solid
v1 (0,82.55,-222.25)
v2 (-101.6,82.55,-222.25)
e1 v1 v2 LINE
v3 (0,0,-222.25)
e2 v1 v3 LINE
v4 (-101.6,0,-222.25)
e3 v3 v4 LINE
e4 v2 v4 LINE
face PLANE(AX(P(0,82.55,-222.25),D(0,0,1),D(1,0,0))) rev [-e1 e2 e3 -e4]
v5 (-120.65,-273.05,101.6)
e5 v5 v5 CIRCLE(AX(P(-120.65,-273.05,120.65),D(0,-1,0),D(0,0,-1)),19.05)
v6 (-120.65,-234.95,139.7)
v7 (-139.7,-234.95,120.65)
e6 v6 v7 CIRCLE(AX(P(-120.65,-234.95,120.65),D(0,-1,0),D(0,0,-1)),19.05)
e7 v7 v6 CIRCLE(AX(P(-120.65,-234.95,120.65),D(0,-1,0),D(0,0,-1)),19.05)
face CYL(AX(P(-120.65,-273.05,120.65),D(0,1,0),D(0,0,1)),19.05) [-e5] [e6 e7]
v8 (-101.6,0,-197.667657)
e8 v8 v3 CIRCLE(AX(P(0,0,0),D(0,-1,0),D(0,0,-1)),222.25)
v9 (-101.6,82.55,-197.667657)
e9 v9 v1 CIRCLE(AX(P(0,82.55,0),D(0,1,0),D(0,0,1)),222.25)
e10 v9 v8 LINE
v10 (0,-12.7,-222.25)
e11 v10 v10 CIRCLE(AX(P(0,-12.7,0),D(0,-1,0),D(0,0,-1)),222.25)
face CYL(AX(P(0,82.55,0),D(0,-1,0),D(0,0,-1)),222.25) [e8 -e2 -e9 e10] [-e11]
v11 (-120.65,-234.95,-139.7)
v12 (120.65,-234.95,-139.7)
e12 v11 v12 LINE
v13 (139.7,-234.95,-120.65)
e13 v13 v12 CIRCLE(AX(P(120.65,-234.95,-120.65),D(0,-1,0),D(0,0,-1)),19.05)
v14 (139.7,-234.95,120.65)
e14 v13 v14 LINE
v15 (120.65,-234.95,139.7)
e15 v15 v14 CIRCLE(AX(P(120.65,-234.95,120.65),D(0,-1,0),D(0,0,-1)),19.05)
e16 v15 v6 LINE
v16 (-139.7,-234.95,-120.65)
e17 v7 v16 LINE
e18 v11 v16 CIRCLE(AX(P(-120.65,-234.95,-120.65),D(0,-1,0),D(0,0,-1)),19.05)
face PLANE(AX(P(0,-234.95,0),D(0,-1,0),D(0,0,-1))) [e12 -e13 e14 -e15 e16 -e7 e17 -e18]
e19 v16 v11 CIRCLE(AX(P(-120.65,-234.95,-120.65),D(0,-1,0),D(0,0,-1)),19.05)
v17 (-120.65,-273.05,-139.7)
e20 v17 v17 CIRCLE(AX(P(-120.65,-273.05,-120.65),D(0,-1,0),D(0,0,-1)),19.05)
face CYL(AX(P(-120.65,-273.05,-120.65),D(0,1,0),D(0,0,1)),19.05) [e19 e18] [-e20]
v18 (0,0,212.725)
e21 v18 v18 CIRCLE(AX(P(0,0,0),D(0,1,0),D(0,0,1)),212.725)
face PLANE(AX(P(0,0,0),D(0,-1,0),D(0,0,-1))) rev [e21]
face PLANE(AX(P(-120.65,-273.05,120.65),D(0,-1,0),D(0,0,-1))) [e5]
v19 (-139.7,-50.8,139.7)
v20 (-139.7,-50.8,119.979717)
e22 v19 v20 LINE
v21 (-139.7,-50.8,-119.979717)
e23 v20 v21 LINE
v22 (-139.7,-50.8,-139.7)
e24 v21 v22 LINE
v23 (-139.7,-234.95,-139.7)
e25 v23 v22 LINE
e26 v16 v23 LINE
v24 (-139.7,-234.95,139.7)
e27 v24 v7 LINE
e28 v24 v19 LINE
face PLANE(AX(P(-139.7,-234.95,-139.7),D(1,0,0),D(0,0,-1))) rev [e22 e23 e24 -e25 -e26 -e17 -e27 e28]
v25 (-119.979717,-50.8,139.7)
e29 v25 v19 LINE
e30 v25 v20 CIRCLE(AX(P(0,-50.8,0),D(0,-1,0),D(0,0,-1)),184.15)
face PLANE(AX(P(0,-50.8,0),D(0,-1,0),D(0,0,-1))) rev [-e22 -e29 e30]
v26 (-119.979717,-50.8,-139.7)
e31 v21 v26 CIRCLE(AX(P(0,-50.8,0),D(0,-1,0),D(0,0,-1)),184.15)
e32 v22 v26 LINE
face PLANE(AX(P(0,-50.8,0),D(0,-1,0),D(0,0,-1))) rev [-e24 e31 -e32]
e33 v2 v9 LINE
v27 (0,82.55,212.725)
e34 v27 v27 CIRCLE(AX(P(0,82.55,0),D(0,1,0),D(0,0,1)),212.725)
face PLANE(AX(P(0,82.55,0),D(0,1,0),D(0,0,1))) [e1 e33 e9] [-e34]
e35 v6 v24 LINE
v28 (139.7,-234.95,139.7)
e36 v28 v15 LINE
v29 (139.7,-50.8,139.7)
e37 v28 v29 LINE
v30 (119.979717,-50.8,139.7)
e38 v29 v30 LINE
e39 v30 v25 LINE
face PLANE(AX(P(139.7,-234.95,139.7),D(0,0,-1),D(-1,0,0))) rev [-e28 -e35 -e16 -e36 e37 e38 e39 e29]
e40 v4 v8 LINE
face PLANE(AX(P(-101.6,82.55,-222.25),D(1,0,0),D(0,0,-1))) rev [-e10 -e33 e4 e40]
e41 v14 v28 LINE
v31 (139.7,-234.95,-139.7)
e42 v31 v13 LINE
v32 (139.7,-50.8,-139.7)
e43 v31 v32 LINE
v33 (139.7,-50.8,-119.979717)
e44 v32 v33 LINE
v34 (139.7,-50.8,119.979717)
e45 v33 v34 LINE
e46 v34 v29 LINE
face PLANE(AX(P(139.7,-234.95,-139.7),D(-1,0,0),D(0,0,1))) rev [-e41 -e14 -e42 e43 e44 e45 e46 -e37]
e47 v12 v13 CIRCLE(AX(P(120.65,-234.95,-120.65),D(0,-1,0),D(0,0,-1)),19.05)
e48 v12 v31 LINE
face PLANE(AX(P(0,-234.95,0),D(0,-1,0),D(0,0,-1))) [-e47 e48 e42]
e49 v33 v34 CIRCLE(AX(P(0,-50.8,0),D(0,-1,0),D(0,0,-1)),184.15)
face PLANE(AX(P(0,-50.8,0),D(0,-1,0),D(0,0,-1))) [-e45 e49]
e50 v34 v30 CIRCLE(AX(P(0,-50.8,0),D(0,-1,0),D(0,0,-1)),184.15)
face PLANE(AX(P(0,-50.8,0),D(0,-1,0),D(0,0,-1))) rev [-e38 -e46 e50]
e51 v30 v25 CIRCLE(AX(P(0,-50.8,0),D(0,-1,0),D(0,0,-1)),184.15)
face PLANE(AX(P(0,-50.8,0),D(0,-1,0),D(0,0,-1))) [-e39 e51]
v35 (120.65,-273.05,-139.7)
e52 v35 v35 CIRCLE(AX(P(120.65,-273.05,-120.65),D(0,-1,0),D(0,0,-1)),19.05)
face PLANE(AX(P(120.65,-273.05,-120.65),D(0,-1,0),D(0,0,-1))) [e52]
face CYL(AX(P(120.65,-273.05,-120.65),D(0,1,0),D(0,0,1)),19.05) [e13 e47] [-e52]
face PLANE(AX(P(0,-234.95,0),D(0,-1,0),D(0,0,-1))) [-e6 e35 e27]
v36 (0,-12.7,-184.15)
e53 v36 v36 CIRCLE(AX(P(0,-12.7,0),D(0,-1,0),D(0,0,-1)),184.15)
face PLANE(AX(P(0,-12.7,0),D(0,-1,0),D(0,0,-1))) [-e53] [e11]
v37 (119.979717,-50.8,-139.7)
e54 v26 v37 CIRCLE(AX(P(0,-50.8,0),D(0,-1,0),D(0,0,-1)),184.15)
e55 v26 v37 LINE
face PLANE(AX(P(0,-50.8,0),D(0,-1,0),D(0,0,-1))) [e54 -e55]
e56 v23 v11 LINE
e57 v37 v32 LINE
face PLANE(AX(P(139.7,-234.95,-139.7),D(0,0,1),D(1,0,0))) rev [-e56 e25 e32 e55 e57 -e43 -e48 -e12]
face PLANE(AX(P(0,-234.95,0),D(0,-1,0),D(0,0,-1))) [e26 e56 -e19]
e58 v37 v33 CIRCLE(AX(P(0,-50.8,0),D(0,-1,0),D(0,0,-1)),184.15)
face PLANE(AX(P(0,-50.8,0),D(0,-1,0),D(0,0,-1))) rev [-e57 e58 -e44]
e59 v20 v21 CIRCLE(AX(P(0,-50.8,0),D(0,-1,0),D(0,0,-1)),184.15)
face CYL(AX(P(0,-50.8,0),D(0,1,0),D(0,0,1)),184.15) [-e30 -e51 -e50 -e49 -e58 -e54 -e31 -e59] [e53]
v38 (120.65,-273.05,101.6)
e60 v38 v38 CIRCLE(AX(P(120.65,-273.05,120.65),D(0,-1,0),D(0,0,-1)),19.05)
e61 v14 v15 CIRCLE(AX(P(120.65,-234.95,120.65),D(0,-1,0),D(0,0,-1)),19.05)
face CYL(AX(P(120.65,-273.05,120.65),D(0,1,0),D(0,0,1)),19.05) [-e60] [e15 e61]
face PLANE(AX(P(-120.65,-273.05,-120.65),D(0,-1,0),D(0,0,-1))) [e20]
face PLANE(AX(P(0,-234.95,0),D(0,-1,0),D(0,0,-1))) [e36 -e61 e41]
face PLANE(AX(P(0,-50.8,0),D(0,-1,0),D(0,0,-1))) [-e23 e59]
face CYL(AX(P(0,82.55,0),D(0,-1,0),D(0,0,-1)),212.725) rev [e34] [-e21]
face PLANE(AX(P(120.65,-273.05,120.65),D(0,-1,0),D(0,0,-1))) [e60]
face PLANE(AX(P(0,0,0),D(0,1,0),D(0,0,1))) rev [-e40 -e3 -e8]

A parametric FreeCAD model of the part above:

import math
import FreeCAD as App
import Part
import Sketcher
from FreeCAD import Vector
Q = App.Units.Quantity

doc = App.newDocument("Part")
params = doc.addObject("Spreadsheet::Sheet", "Params")
for row, (alias, value) in enumerate([
    ("sketch1_diameter", "16.75 in"),
    ("sketch1_width", "4 in"),
    ("sketch1_radius", "8.75 in"),
    ("pad1_length", "3.25 in"),
    ("sketch2_diameter", "17.5 in"),
    ("pad2_length", "0.5 in"),
    ("sketch3_diameter", "14.5 in"),
    ("pad3_length", "1.5 in"),
    ("sketch4_width", "11 in"),
    ("pad4_length", "7.25 in"),
    ("sketch5_diameter", "1.5 in"),
    ("pad5_length", "1.5 in"),
], start=1):
    params.set(f"A{row}", alias)
    params.set(f"B{row}", "=" + value)
    params.setAlias(f"B{row}", alias)

body = doc.addObject("PartDesign::Body", "Body")

sketch1 = body.newObject("Sketcher::SketchObject", "Sketch")
sketch1.AttachmentSupport = (doc.getObject("XZ_Plane"), [""])
sketch1.MapMode = "FlatFace"
sketch1.addGeometry(Part.LineSegment(Vector(0, -222, 0), Vector(-102, -222, 0)), False)
sketch1.addGeometry(Part.LineSegment(Vector(-102, -222, 0), Vector(-102, -198, 0)), False)
sketch1.addGeometry(Part.ArcOfCircle(Part.Circle(Vector(0, 0, 0), Vector(0, 0, 1), 222), math.radians(-90), math.radians(243)), False)
sketch1.addGeometry(Part.Circle(Vector(0, 0, 0), Vector(0, 0, 1), 213), False)
sketch1.addConstraint(Sketcher.Constraint("Coincident", 0, 2, 1, 1))
sketch1.addConstraint(Sketcher.Constraint("Coincident", 1, 2, 2, 2))
sketch1.addConstraint(Sketcher.Constraint("Tangent", 2, 1, 0, 1))
sketch1.addConstraint(Sketcher.Constraint("Horizontal", 0))
sketch1.addConstraint(Sketcher.Constraint("Vertical", 1))
sketch1.addConstraint(Sketcher.Constraint("Coincident", 2, 3, -1, 1))
sketch1.addConstraint(Sketcher.Constraint("Coincident", 3, 3, -1, 1))
sketch1.addConstraint(Sketcher.Constraint("Diameter", 3, Q("16.75 in")))
sketch1.addConstraint(Sketcher.Constraint("DistanceX", 0, 2, 0, 1, Q("4 in")))
sketch1.addConstraint(Sketcher.Constraint("Radius", 2, Q("8.75 in")))
sketch1.setExpression("Constraints[7]", "Params.sketch1_diameter")
sketch1.setExpression("Constraints[8]", "Params.sketch1_width")
sketch1.setExpression("Constraints[9]", "Params.sketch1_radius")
pad1 = body.newObject("PartDesign::Pad", "Pad")
pad1.Profile = sketch1
pad1.setExpression("Length", "Params.pad1_length")
pad1.Reversed = True

sketch2 = body.newObject("Sketcher::SketchObject", "Sketch001")
sketch2.AttachmentSupport = (doc.getObject("XZ_Plane"), [""])
sketch2.MapMode = "FlatFace"
sketch2.addGeometry(Part.Circle(Vector(0, 0, 0), Vector(0, 0, 1), 222), False)
sketch2.addConstraint(Sketcher.Constraint("Coincident", 0, 3, -1, 1))
sketch2.addConstraint(Sketcher.Constraint("Diameter", 0, Q("17.5 in")))
sketch2.setExpression("Constraints[1]", "Params.sketch2_diameter")
pad2 = body.newObject("PartDesign::Pad", "Pad001")
pad2.Profile = sketch2
pad2.setExpression("Length", "Params.pad2_length")

sketch3 = body.newObject("Sketcher::SketchObject", "Sketch002")
sketch3.AttachmentSupport = (doc.getObject("XZ_Plane"), [""])
sketch3.MapMode = "FlatFace"
sketch3.AttachmentOffset = App.Placement(Vector(0, 0, 0.5 * 25.4), App.Rotation())
sketch3.addGeometry(Part.Circle(Vector(0, 0, 0), Vector(0, 0, 1), 184), False)
sketch3.addConstraint(Sketcher.Constraint("Coincident", 0, 3, -1, 1))
sketch3.addConstraint(Sketcher.Constraint("Diameter", 0, Q("14.5 in")))
sketch3.setExpression("Constraints[1]", "Params.sketch3_diameter")
pad3 = body.newObject("PartDesign::Pad", "Pad002")
pad3.Profile = sketch3
pad3.setExpression("Length", "Params.pad3_length")

sketch4 = body.newObject("Sketcher::SketchObject", "Sketch003")
sketch4.AttachmentSupport = (doc.getObject("XZ_Plane"), [""])
sketch4.MapMode = "FlatFace"
sketch4.AttachmentOffset = App.Placement(Vector(0, 0, 2 * 25.4), App.Rotation())
sketch4.addGeometry(Part.LineSegment(Vector(-140, 140, 0), Vector(-140, -140, 0)), False)
sketch4.addGeometry(Part.LineSegment(Vector(-140, -140, 0), Vector(140, -140, 0)), False)
sketch4.addGeometry(Part.LineSegment(Vector(140, -140, 0), Vector(140, 140, 0)), False)
sketch4.addGeometry(Part.LineSegment(Vector(140, 140, 0), Vector(-140, 140, 0)), False)
sketch4.addConstraint(Sketcher.Constraint("Coincident", 0, 2, 1, 1))
sketch4.addConstraint(Sketcher.Constraint("Coincident", 1, 2, 2, 1))
sketch4.addConstraint(Sketcher.Constraint("Coincident", 2, 2, 3, 1))
sketch4.addConstraint(Sketcher.Constraint("Coincident", 3, 2, 0, 1))
sketch4.addConstraint(Sketcher.Constraint("Vertical", 0))
sketch4.addConstraint(Sketcher.Constraint("Horizontal", 1))
sketch4.addConstraint(Sketcher.Constraint("Vertical", 2))
sketch4.addConstraint(Sketcher.Constraint("Horizontal", 3))
sketch4.addConstraint(Sketcher.Constraint("Symmetric", 0, 2, 2, 2, -1, 1))
sketch4.addConstraint(Sketcher.Constraint("Equal", 3, 0))
sketch4.addConstraint(Sketcher.Constraint("DistanceX", 1, 1, 1, 2, Q("11 in")))
sketch4.setExpression("Constraints[10]", "Params.sketch4_width")
pad4 = body.newObject("PartDesign::Pad", "Pad003")
pad4.Profile = sketch4
pad4.setExpression("Length", "Params.pad4_length")

sketch5 = body.newObject("Sketcher::SketchObject", "Sketch004")
sketch5.AttachmentSupport = (doc.getObject("XZ_Plane"), [""])
sketch5.MapMode = "FlatFace"
sketch5.AttachmentOffset = App.Placement(Vector(0, 0, 9.25 * 25.4), App.Rotation())
sketch5.addGeometry(Part.Circle(Vector(-121, -121, 0), Vector(0, 0, 1), 19), False)
sketch5.addGeometry(Part.Circle(Vector(-121, 121, 0), Vector(0, 0, 1), 19), False)
sketch5.addGeometry(Part.Circle(Vector(121, -121, 0), Vector(0, 0, 1), 19), False)
sketch5.addGeometry(Part.Circle(Vector(121, 121, 0), Vector(0, 0, 1), 19), False)
sketch5.addConstraint(Sketcher.Constraint("Equal", 0, 1))
sketch5.addConstraint(Sketcher.Constraint("Equal", 1, 2))
sketch5.addConstraint(Sketcher.Constraint("Equal", 2, 3))
sketch5.addConstraint(Sketcher.Constraint("Symmetric", 1, 3, 2, 3, -1, 1))
sketch5.addConstraint(Sketcher.Constraint("Symmetric", 0, 3, 3, 3, -1, 1))
sketch5.addConstraint(Sketcher.Constraint("Symmetric", 0, 3, 2, 3, -2))
sketch5.addConstraint(Sketcher.Constraint("Diameter", 0, Q("1.5 in")))
sketch5.addConstraint(Sketcher.Constraint("DistanceY", 0, 3, 1, 3, Q("9.5 in")))
sketch5.addConstraint(Sketcher.Constraint("DistanceX", 0, 3, 2, 3, Q("9.5 in")))
sketch5.setExpression("Constraints[6]", "Params.sketch5_diameter")
pad5 = body.newObject("PartDesign::Pad", "Pad004")
pad5.Profile = sketch5
pad5.setExpression("Length", "Params.pad5_length")

doc.recompute()
